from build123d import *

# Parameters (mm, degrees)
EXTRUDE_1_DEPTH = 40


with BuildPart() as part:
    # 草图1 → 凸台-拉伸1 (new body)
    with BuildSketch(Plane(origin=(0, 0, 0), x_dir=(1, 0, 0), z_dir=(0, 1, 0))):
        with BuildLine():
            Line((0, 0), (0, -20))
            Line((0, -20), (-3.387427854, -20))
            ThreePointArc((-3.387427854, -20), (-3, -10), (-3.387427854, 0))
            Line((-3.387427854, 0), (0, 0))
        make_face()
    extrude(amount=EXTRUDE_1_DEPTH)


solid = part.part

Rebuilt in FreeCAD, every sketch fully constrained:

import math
import FreeCAD as App
import Part
import Sketcher

doc = App.newDocument("Part")
body = doc.addObject("PartDesign::Body", "Body")

sketch1 = body.newObject("Sketcher::SketchObject", "Sketch")
sketch1.AttachmentSupport = (doc.getObject("XZ_Plane"), [""])
sketch1.MapMode = "FlatFace"
sketch1.addGeometry([
    Part.LineSegment(App.Vector(0, 20, 0), App.Vector(0, 0, 0)),
    Part.LineSegment(App.Vector(0, 0, 0), App.Vector(-3.4, 0, 0)),
    Part.ArcOfCircle(Part.Circle(App.Vector(-132.3, 10, 0), App.Vector(0, 0, 1), 129.3), math.radians(-4.44), math.radians(4.44)),
    Part.LineSegment(App.Vector(-3.4, 20, 0), App.Vector(0, 20, 0)),
], False)
sketch1.addConstraint([
    Sketcher.Constraint("Coincident", 0, 2, 1, 1),
    Sketcher.Constraint("Coincident", 1, 2, 2, 1),
    Sketcher.Constraint("Coincident", 2, 2, 3, 1),
    Sketcher.Constraint("Coincident", 3, 2, 0, 1),
    Sketcher.Constraint("Vertical", 0),
    Sketcher.Constraint("Horizontal", 1),
    Sketcher.Constraint("Horizontal", 3),
    Sketcher.Constraint("Coincident", 0, 2, -1, 1),
    Sketcher.Constraint("Vertical", 1, 2, 2, 2),
    Sketcher.Constraint("DistanceY", 0, 2, 0, 1, 20.0),
    Sketcher.Constraint("Radius", 2, 129.25),
    Sketcher.Constraint("DistanceX", 2, 3, -1, 1, 132.25),
])
pad1 = body.newObject("PartDesign::Pad", "Pad")
pad1.Profile = sketch1
pad1.Length = 40
pad1.Reversed = True

doc.recompute()
